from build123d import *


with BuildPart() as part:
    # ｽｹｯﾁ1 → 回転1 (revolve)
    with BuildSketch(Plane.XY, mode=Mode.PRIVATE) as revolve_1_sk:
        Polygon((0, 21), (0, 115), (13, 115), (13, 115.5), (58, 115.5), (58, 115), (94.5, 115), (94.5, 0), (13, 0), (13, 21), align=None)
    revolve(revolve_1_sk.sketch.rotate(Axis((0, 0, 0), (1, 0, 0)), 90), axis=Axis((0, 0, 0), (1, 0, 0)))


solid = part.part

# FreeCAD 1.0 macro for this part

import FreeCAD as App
import Part
import Sketcher
from FreeCAD import Vector

doc = App.newDocument("Part")
body = doc.addObject("PartDesign::Body", "Body")

sketch1 = body.newObject("Sketcher::SketchObject", "Sketch")
sketch1.AttachmentSupport = (doc.getObject("XY_Plane"), [""])
sketch1.MapMode = "FlatFace"
sketch1.addGeometry([
    Part.LineSegment(Vector(0, 115, 0), Vector(0, 21, 0)),
    Part.LineSegment(Vector(0, 21, 0), Vector(13, 21, 0)),
    Part.LineSegment(Vector(13, 21, 0), Vector(13, 0, 0)),
    Part.LineSegment(Vector(13, 0, 0), Vector(94.5, 0, 0)),
    Part.LineSegment(Vector(94.5, 0, 0), Vector(94.5, 115, 0)),
    Part.LineSegment(Vector(94.5, 115, 0), Vector(58, 115, 0)),
    Part.LineSegment(Vector(58, 115, 0), Vector(58, 115.5, 0)),
    Part.LineSegment(Vector(58, 115.5, 0), Vector(13, 115.5, 0)),
    Part.LineSegment(Vector(13, 115.5, 0), Vector(13, 115, 0)),
    Part.LineSegment(Vector(13, 115, 0), Vector(0, 115, 0)),
], False)
sketch1.addConstraint([
    Sketcher.Constraint("Coincident", 0, 2, 1, 1),
    Sketcher.Constraint("Coincident", 1, 2, 2, 1),
    Sketcher.Constraint("Coincident", 2, 2, 3, 1),
    Sketcher.Constraint("Coincident", 3, 2, 4, 1),
    Sketcher.Constraint("Coincident", 4, 2, 5, 1),
    Sketcher.Constraint("Coincident", 5, 2, 6, 1),
    Sketcher.Constraint("Coincident", 6, 2, 7, 1),
    Sketcher.Constraint("Coincident", 7, 2, 8, 1),
    Sketcher.Constraint("Coincident", 8, 2, 9, 1),
    Sketcher.Constraint("Coincident", 9, 2, 0, 1),
    Sketcher.Constraint("Vertical", 0),
    Sketcher.Constraint("Horizontal", 1),
    Sketcher.Constraint("Vertical", 2),
    Sketcher.Constraint("Horizontal", 3),
    Sketcher.Constraint("Vertical", 4),
    Sketcher.Constraint("Horizontal", 5),
    Sketcher.Constraint("Vertical", 6),
    Sketcher.Constraint("Horizontal", 7),
    Sketcher.Constraint("Vertical", 8),
    Sketcher.Constraint("Horizontal", 9),
    Sketcher.Constraint("PointOnObject", 0, 2, -2),
    Sketcher.Constraint("PointOnObject", 2, 2, -1),
    Sketcher.Constraint("Horizontal", 5, 2, 8, 2),
    Sketcher.Constraint("Vertical", 2, 2, 7, 2),
    Sketcher.Constraint("DistanceX", 1, 1, 1, 2, 13.0),
    Sketcher.Constraint("DistanceX", 7, 2, 7, 1, 45.0),
    Sketcher.Constraint("DistanceY", 0, 2, 0, 1, 94.0),
    Sketcher.Constraint("DistanceY", 2, 2, 2, 1, 21.0),
    Sketcher.Constraint("DistanceX", 3, 1, 3, 2, 81.5),
    Sketcher.Constraint("DistanceY", 6, 1, 6, 2, 0.5),
])
revolution = body.newObject("PartDesign::Revolution", "Revolution")
revolution.Profile = sketch1
revolution.ReferenceAxis = (sketch1, ["H_Axis"])
revolution.Angle = 360

doc.recompute()
